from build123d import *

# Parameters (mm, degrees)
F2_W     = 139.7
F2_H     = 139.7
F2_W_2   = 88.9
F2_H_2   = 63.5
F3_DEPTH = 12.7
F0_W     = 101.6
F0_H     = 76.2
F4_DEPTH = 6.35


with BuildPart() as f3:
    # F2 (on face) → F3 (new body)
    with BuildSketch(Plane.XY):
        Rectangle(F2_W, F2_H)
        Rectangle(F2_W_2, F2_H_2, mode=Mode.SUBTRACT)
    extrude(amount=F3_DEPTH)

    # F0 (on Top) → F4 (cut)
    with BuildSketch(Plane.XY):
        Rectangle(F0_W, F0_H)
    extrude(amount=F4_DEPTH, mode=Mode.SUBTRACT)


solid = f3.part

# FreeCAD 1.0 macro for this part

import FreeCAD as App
import Part
import Sketcher

V = App.Vector
Q = App.Units.Quantity

doc = App.newDocument("Part")
body = doc.addObject("PartDesign::Body", "Body")

# Sketch on XY plane
sketch1 = body.newObject("Sketcher::SketchObject", "Sketch")
sketch1.AttachmentSupport = (doc.getObject("XY_Plane"), [""])
sketch1.MapMode = "FlatFace"
sketch1.addGeometry([
    Part.LineSegment(V(-70, 70, 0), V(-70, -70, 0)),  # 0
    Part.LineSegment(V(-70, -70, 0), V(70, -70, 0)),  # 1
    Part.LineSegment(V(70, -70, 0), V(70, 70, 0)),  # 2
    Part.LineSegment(V(70, 70, 0), V(-70, 70, 0)),  # 3
    Part.LineSegment(V(44, -32, 0), V(-44, -32, 0)),  # 4
    Part.LineSegment(V(-44, -32, 0), V(-44, 32, 0)),  # 5
    Part.LineSegment(V(-44, 32, 0), V(44, 32, 0)),  # 6
    Part.LineSegment(V(44, 32, 0), V(44, -32, 0)),  # 7
], False)
sketch1.addConstraint([
    Sketcher.Constraint("Coincident", 0, 2, 1, 1),
    Sketcher.Constraint("Coincident", 1, 2, 2, 1),
    Sketcher.Constraint("Coincident", 2, 2, 3, 1),
    Sketcher.Constraint("Coincident", 3, 2, 0, 1),
    Sketcher.Constraint("Coincident", 4, 2, 5, 1),
    Sketcher.Constraint("Coincident", 5, 2, 6, 1),
    Sketcher.Constraint("Coincident", 6, 2, 7, 1),
    Sketcher.Constraint("Coincident", 7, 2, 4, 1),
    Sketcher.Constraint("Vertical", 0),
    Sketcher.Constraint("Horizontal", 1),
    Sketcher.Constraint("Vertical", 2),
    Sketcher.Constraint("Horizontal", 3),
    Sketcher.Constraint("Horizontal", 4),
    Sketcher.Constraint("Vertical", 5),
    Sketcher.Constraint("Horizontal", 6),
    Sketcher.Constraint("Vertical", 7),
    Sketcher.Constraint("Symmetric", 0, 2, 2, 2, -1, 1),
    Sketcher.Constraint("Symmetric", 4, 2, 6, 2, -1, 1),
    Sketcher.Constraint("Equal", 3, 0),
    Sketcher.Constraint("DistanceX", 1, 1, 1, 2, Q("5.5 in")),
    Sketcher.Constraint("DistanceX", 4, 2, 4, 1, Q("3.5 in")),
    Sketcher.Constraint("DistanceY", 5, 1, 5, 2, Q("2.5 in")),
])
pad1 = body.newObject("PartDesign::Pad", "Pad")
pad1.Profile = sketch1
pad1.Length = Q("0.5 in")

# Sketch on XY plane
sketch2 = body.newObject("Sketcher::SketchObject", "Sketch001")
sketch2.AttachmentSupport = (doc.getObject("XY_Plane"), [""])
sketch2.MapMode = "FlatFace"
sketch2.addGeometry([
    Part.LineSegment(V(-51, 38, 0), V(-51, -38, 0)),
    Part.LineSegment(V(-51, -38, 0), V(51, -38, 0)),
    Part.LineSegment(V(51, -38, 0), V(51, 38, 0)),
    Part.LineSegment(V(51, 38, 0), V(-51, 38, 0)),
], False)
sketch2.addConstraint([
    Sketcher.Constraint("Coincident", 0, 2, 1, 1),
    Sketcher.Constraint("Coincident", 1, 2, 2, 1),
    Sketcher.Constraint("Coincident", 2, 2, 3, 1),
    Sketcher.Constraint("Coincident", 3, 2, 0, 1),
    Sketcher.Constraint("Vertical", 0),
    Sketcher.Constraint("Horizontal", 1),
    Sketcher.Constraint("Vertical", 2),
    Sketcher.Constraint("Horizontal", 3),
    Sketcher.Constraint("Symmetric", 0, 2, 2, 2, -1, 1),
    Sketcher.Constraint("DistanceX", 1, 1, 1, 2, Q("4 in")),
    Sketcher.Constraint("DistanceY", 0, 2, 0, 1, Q("3 in")),
])
pocket1 = body.newObject("PartDesign::Pocket", "Pocket")
pocket1.Profile = sketch2
pocket1.Length = Q("0.25 in")
pocket1.Reversed = True

doc.recompute()
